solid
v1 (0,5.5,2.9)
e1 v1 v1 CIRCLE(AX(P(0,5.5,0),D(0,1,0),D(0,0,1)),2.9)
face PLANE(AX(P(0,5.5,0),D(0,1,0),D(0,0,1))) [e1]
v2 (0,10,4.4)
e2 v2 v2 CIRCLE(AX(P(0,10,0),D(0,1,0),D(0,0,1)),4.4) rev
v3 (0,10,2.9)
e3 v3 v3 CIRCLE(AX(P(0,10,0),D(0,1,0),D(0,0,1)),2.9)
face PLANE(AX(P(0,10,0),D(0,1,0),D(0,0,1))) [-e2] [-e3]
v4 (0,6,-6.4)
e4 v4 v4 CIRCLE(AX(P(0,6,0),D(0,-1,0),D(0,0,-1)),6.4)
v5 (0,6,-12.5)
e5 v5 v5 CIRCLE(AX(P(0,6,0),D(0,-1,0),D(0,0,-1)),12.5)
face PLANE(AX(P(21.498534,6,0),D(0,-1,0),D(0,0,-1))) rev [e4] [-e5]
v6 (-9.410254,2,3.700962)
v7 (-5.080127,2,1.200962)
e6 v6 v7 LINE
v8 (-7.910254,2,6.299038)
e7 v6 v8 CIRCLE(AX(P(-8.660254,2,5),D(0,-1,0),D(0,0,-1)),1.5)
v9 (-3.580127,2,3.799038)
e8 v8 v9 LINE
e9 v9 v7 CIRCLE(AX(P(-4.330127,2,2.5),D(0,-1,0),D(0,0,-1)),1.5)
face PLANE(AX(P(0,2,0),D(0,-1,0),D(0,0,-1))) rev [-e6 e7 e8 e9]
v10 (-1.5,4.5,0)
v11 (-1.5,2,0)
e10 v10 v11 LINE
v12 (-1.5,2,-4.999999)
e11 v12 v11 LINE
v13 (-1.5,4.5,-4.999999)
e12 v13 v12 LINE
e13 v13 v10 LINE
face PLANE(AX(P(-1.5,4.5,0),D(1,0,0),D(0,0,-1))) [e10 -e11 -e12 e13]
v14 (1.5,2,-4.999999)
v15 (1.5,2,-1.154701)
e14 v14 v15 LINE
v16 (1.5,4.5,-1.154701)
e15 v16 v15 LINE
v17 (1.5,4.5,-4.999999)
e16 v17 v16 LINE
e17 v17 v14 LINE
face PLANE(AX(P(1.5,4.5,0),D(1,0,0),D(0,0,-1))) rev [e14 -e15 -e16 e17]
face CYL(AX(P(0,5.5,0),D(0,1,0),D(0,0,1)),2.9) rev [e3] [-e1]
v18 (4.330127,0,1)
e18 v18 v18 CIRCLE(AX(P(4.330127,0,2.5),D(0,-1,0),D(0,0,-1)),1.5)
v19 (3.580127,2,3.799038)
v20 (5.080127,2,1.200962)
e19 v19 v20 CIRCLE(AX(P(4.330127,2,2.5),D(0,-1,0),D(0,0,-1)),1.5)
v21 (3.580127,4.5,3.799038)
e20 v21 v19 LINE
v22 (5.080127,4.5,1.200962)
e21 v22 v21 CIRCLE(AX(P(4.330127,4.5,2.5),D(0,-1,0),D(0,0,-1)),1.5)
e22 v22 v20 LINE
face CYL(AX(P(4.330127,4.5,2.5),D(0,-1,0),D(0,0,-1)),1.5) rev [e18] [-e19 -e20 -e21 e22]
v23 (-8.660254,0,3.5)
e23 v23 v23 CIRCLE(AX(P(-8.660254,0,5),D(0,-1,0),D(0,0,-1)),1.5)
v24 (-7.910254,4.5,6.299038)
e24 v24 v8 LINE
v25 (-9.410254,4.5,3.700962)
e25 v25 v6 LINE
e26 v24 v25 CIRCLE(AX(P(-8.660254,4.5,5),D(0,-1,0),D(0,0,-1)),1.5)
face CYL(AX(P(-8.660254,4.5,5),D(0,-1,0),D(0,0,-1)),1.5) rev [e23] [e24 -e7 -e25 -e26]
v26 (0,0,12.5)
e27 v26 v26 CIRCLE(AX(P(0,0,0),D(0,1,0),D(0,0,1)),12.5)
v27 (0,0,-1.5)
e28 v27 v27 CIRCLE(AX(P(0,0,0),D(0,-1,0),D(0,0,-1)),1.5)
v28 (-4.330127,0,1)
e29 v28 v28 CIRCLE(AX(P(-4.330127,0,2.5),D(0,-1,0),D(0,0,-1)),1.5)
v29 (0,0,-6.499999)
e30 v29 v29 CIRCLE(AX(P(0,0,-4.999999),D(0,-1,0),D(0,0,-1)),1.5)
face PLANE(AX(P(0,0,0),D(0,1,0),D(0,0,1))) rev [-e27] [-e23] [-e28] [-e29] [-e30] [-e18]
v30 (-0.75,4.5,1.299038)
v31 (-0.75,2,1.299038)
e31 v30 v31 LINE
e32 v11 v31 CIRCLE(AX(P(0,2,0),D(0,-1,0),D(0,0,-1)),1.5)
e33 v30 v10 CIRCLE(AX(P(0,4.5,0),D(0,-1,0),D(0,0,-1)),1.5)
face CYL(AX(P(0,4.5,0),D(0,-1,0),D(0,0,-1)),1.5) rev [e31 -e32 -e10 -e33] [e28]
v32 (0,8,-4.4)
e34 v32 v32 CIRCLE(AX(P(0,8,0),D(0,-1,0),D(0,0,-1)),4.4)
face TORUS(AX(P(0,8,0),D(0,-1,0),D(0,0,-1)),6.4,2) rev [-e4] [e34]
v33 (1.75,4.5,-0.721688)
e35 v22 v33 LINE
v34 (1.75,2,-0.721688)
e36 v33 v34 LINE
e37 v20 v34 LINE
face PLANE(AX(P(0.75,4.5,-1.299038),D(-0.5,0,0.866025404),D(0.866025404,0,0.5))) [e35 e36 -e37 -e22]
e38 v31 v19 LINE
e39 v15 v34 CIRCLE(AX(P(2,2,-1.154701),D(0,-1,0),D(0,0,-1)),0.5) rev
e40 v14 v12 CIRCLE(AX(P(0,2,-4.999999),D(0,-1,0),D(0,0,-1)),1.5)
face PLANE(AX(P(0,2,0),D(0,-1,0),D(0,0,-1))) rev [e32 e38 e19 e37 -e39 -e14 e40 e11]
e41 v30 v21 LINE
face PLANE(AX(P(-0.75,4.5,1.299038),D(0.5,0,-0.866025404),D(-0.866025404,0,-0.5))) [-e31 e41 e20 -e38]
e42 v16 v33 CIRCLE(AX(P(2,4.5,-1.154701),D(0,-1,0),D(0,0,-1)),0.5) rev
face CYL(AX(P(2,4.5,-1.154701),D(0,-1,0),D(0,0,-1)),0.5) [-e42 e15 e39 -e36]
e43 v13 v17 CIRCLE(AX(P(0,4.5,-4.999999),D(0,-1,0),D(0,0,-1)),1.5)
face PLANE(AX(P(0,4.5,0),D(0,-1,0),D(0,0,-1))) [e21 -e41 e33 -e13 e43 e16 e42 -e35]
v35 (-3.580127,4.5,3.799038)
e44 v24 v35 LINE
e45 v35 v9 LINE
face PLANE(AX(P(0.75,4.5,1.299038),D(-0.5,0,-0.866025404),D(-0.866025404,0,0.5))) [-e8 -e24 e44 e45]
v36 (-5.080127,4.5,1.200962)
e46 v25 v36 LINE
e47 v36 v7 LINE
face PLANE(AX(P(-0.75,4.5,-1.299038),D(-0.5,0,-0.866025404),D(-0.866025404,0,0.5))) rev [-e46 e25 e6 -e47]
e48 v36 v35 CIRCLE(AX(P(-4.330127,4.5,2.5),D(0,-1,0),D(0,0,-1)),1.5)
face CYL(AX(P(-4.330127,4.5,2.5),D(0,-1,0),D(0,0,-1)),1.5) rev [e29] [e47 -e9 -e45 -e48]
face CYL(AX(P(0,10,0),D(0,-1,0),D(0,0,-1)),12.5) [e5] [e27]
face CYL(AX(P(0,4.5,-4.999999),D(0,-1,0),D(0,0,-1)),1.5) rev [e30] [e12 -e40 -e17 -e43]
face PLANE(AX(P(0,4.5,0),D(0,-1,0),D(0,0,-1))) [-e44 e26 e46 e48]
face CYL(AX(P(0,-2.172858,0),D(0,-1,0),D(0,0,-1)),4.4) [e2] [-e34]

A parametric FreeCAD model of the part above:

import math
import FreeCAD as App
import Part
import Sketcher
Q = App.Units.Quantity

doc = App.newDocument("Part")
params = doc.addObject("Spreadsheet::Sheet", "Params")
for row, (alias, value) in enumerate([
    ("sketch1_diameter", "25 mm"),
    ("pad1_length", "10 mm"),
    ("sketch2_radius", "1.5 mm"),
    ("sketch2_radius2", "0.5 mm"),
    ("sketch2_height", "4.999999 mm"),
    ("sketch2_length", "5 mm"),
    ("pocket1_length", "2.5 mm"),
    ("sketch3_diameter", "3.000001 mm"),
    ("sketch4_diameter", "5.8 mm"),
    ("pocket3_length", "4.5 mm"),
    ("sketch5_radius", "2 mm"),
    ("groove_angle", "360 deg"),
], start=1):
    params.set(f"A{row}", alias)
    params.set(f"B{row}", "=" + value)
    params.setAlias(f"B{row}", alias)

body = doc.addObject("PartDesign::Body", "Body")

# Sketch on XZ plane
sketch1 = body.newObject("Sketcher::SketchObject", "Sketch")
sketch1.AttachmentSupport = (doc.getObject("XZ_Plane"), [""])
sketch1.MapMode = "FlatFace"
sketch1.addGeometry(Part.Circle(App.Vector(0, 0, 0), App.Vector(0, 0, 1), 12), False)
sketch1.addConstraint([
    Sketcher.Constraint("Coincident", 0, 3, -1, 1),
    Sketcher.Constraint("Diameter", 0, Q("25 mm")),
])
sketch1.setExpression("Constraints[1]", "Params.sketch1_diameter")
pad1 = body.newObject("PartDesign::Pad", "Pad")
pad1.Profile = sketch1
pad1.setExpression("Length", "Params.pad1_length")
pad1.Reversed = True

# Sketch on XZ plane
sketch2 = body.newObject("Sketcher::SketchObject", "Sketch001")
sketch2.AttachmentSupport = (doc.getObject("XZ_Plane"), [""])
sketch2.MapMode = "FlatFace"
sketch2.AttachmentOffset = App.Placement(App.Vector(0, 0, -2), App.Rotation())
sketch2.addGeometry([
    Part.ArcOfCircle(Part.Circle(App.Vector(-8.7, 5, 0), App.Vector(0, 0, 1), 1.5), math.radians(60), math.radians(240)),  # 0
    Part.LineSegment(App.Vector(-9.4, 3.7, 0), App.Vector(-5.1, 1.2, 0)),  # 1
    Part.ArcOfCircle(Part.Circle(App.Vector(-4.3, 2.5, 0), App.Vector(0, 0, 1), 1.5), math.radians(-120), math.radians(60)),  # 2
    Part.LineSegment(App.Vector(-3.6, 3.8, 0), App.Vector(-7.9, 6.3, 0)),  # 3
    Part.LineSegment(App.Vector(-1.5, 0, 0), App.Vector(-1.5, -5, 0)),  # 4
    Part.ArcOfCircle(Part.Circle(App.Vector(0, -5, 0), App.Vector(0, 0, 1), 1.5), math.radians(180), math.radians(360)),  # 5
    Part.LineSegment(App.Vector(1.5, -5, 0), App.Vector(1.5, -1.2, 0)),  # 6
    Part.ArcOfCircle(Part.Circle(App.Vector(2, -1.2, 0), App.Vector(0, 0, 1), 0.5), math.radians(120), math.radians(180)),  # 7
    Part.LineSegment(App.Vector(1.8, -0.7, 0), App.Vector(5.1, 1.2, 0)),  # 8
    Part.ArcOfCircle(Part.Circle(App.Vector(4.3, 2.5, 0), App.Vector(0, 0, 1), 1.5), math.radians(-60), math.radians(120)),  # 9
    Part.LineSegment(App.Vector(3.6, 3.8, 0), App.Vector(-0.8, 1.3, 0)),  # 10
    Part.ArcOfCircle(Part.Circle(App.Vector(0, 0, 0), App.Vector(0, 0, 1), 1.5), math.radians(120), math.radians(180)),  # 11
], False)
sketch2.addConstraint([
    Sketcher.Constraint("Tangent", 0, 2, 1, 1),
    Sketcher.Constraint("Tangent", 1, 2, 2, 1),
    Sketcher.Constraint("Tangent", 2, 2, 3, 1),
    Sketcher.Constraint("Tangent", 3, 2, 0, 1),
    Sketcher.Constraint("Tangent", 4, 2, 5, 1),
    Sketcher.Constraint("Tangent", 5, 2, 6, 1),
    Sketcher.Constraint("Tangent", 6, 2, 7, 2),
    Sketcher.Constraint("Tangent", 7, 1, 8, 1),
    Sketcher.Constraint("Tangent", 8, 2, 9, 1),
    Sketcher.Constraint("Tangent", 9, 2, 10, 1),
    Sketcher.Constraint("Tangent", 10, 2, 11, 1),
    Sketcher.Constraint("Tangent", 11, 2, 4, 1),
    Sketcher.Constraint("Vertical", 4),
    Sketcher.Constraint("Vertical", 6),
    Sketcher.Constraint("Coincident", 11, 3, -1, 1),
    Sketcher.Constraint("Equal", 0, 2),
    Sketcher.Constraint("Equal", 2, 5),
    Sketcher.Constraint("Equal", 5, 9),
    Sketcher.Constraint("Equal", 9, 11),
    Sketcher.Constraint("Symmetric", 2, 3, 9, 3, -2),
    Sketcher.Constraint("Parallel", 8, 10),
    Sketcher.Constraint("Horizontal", 1, 2, 8, 2),
    Sketcher.Constraint("Equal", 3, 10),
    Sketcher.Constraint("Radius", 0, Q("1.5 mm")),
    Sketcher.Constraint("Radius", 7, Q("0.5 mm")),
    Sketcher.Constraint("DistanceY", 4, 2, 4, 1, Q("4.999999 mm")),
    Sketcher.Constraint("Angle", 1, Q("-30 deg")),
    Sketcher.Constraint("Distance", 1, Q("5 mm")),
])
sketch2.setExpression("Constraints[23]", "Params.sketch2_radius")
sketch2.setExpression("Constraints[24]", "Params.sketch2_radius2")
sketch2.setExpression("Constraints[25]", "Params.sketch2_height")
sketch2.setExpression("Constraints[27]", "Params.sketch2_length")
pocket1 = body.newObject("PartDesign::Pocket", "Pocket")
pocket1.Profile = sketch2
pocket1.setExpression("Length", "Params.pocket1_length")

# Sketch on XZ plane
sketch3 = body.newObject("Sketcher::SketchObject", "Sketch002")
sketch3.AttachmentSupport = (doc.getObject("XZ_Plane"), [""])
sketch3.MapMode = "FlatFace"
sketch3.AttachmentOffset = App.Placement(App.Vector(0, 0, -2), App.Rotation())
sketch3.addGeometry([
    Part.Circle(App.Vector(0, -5, 0), App.Vector(0, 0, 1), 1.5),  # 0
    Part.Circle(App.Vector(4.3, 2.5, 0), App.Vector(0, 0, 1), 1.5),  # 1
    Part.Circle(App.Vector(0, 0, 0), App.Vector(0, 0, 1), 1.5),  # 2
    Part.Circle(App.Vector(-8.7, 5, 0), App.Vector(0, 0, 1), 1.5),  # 3
    Part.Circle(App.Vector(-4.3, 2.5, 0), App.Vector(0, 0, 1), 1.5),  # 4
], False)
sketch3.addConstraint([
    Sketcher.Constraint("Coincident", 2, 3, -1, 1),
    Sketcher.Constraint("Equal", 0, 1),
    Sketcher.Constraint("Equal", 1, 2),
    Sketcher.Constraint("Equal", 2, 3),
    Sketcher.Constraint("Equal", 3, 4),
    Sketcher.Constraint("Symmetric", 1, 3, 4, 3, -2),
    Sketcher.Constraint("PointOnObject", 0, 3, -2),
    Sketcher.Constraint("Diameter", 0, Q("3.000001 mm")),
    Sketcher.Constraint("DistanceY", 0, 3, -1, 1, Q("4.999999 mm")),
    Sketcher.Constraint("DistanceY", -1, 1, 3, 3, Q("5 mm")),
    Sketcher.Constraint("DistanceY", -1, 1, 1, 3, Q("2.5 mm")),
    Sketcher.Constraint("DistanceX", 3, 3, 1, 3, Q("12.990381 mm")),
    Sketcher.Constraint("DistanceX", -1, 1, 1, 3, Q("4.330127 mm")),
])
sketch3.setExpression("Constraints[7]", "Params.sketch3_diameter")
pocket2 = body.newObject("PartDesign::Pocket", "Pocket001")
pocket2.Profile = sketch3
pocket2.Type = "ThroughAll"
pocket2.Reversed = True

# Sketch on XZ plane
sketch4 = body.newObject("Sketcher::SketchObject", "Sketch003")
sketch4.AttachmentSupport = (doc.getObject("XZ_Plane"), [""])
sketch4.MapMode = "FlatFace"
sketch4.AttachmentOffset = App.Placement(App.Vector(0, 0, -10), App.Rotation())
sketch4.addGeometry(Part.Circle(App.Vector(0, 0, 0), App.Vector(0, 0, 1), 2.9), False)
sketch4.addConstraint([
    Sketcher.Constraint("Coincident", 0, 3, -1, 1),
    Sketcher.Constraint("Diameter", 0, Q("5.8 mm")),
])
sketch4.setExpression("Constraints[1]", "Params.sketch4_diameter")
pocket3 = body.newObject("PartDesign::Pocket", "Pocket002")
pocket3.Profile = sketch4
pocket3.setExpression("Length", "Params.pocket3_length")
pocket3.Reversed = True

# Sketch on XY plane
sketch5 = body.newObject("Sketcher::SketchObject", "Sketch004")
sketch5.AttachmentSupport = (doc.getObject("XY_Plane"), [""])
sketch5.MapMode = "FlatFace"
sketch5.addGeometry([
    Part.LineSegment(App.Vector(21.5, 15.1, 0), App.Vector(4.4, 15.1, 0)),  # 0
    Part.LineSegment(App.Vector(4.4, 15.1, 0), App.Vector(4.4, 8, 0)),  # 1
    Part.ArcOfCircle(Part.Circle(App.Vector(6.4, 8, 0), App.Vector(0, 0, 1), 2), math.radians(-180), math.radians(-90)),  # 2
    Part.LineSegment(App.Vector(6.4, 6, 0), App.Vector(21.5, 6, 0)),  # 3
    Part.LineSegment(App.Vector(21.5, 6, 0), App.Vector(21.5, 15.1, 0)),  # 4
], False)
sketch5.addConstraint([
    Sketcher.Constraint("Coincident", 0, 2, 1, 1),
    Sketcher.Constraint("Tangent", 1, 2, 2, 1),
    Sketcher.Constraint("Tangent", 2, 2, 3, 1),
    Sketcher.Constraint("Coincident", 3, 2, 4, 1),
    Sketcher.Constraint("Coincident", 4, 2, 0, 1),
    Sketcher.Constraint("Horizontal", 0),
    Sketcher.Constraint("Vertical", 1),
    Sketcher.Constraint("Horizontal", 3),
    Sketcher.Constraint("Vertical", 4),
    Sketcher.Constraint("Radius", 2, Q("2 mm")),
    Sketcher.Constraint("DistanceY", -1, 1, 2, 3, Q("8 mm")),
    Sketcher.Constraint("DistanceX", -1, 1, 2, 3, Q("6.4 mm")),
    Sketcher.Constraint("DistanceY", 1, 2, 1, 1, Q("7.07426 mm")),
    Sketcher.Constraint("DistanceX", 0, 2, 0, 1, Q("17.098534 mm")),
])
sketch5.setExpression("Constraints[9]", "Params.sketch5_radius")
groove = body.newObject("PartDesign::Groove", "Groove")
groove.Profile = sketch5
groove.ReferenceAxis = (sketch5, ["V_Axis"])
groove.setExpression("Angle", "Params.groove_angle")

doc.recompute()
